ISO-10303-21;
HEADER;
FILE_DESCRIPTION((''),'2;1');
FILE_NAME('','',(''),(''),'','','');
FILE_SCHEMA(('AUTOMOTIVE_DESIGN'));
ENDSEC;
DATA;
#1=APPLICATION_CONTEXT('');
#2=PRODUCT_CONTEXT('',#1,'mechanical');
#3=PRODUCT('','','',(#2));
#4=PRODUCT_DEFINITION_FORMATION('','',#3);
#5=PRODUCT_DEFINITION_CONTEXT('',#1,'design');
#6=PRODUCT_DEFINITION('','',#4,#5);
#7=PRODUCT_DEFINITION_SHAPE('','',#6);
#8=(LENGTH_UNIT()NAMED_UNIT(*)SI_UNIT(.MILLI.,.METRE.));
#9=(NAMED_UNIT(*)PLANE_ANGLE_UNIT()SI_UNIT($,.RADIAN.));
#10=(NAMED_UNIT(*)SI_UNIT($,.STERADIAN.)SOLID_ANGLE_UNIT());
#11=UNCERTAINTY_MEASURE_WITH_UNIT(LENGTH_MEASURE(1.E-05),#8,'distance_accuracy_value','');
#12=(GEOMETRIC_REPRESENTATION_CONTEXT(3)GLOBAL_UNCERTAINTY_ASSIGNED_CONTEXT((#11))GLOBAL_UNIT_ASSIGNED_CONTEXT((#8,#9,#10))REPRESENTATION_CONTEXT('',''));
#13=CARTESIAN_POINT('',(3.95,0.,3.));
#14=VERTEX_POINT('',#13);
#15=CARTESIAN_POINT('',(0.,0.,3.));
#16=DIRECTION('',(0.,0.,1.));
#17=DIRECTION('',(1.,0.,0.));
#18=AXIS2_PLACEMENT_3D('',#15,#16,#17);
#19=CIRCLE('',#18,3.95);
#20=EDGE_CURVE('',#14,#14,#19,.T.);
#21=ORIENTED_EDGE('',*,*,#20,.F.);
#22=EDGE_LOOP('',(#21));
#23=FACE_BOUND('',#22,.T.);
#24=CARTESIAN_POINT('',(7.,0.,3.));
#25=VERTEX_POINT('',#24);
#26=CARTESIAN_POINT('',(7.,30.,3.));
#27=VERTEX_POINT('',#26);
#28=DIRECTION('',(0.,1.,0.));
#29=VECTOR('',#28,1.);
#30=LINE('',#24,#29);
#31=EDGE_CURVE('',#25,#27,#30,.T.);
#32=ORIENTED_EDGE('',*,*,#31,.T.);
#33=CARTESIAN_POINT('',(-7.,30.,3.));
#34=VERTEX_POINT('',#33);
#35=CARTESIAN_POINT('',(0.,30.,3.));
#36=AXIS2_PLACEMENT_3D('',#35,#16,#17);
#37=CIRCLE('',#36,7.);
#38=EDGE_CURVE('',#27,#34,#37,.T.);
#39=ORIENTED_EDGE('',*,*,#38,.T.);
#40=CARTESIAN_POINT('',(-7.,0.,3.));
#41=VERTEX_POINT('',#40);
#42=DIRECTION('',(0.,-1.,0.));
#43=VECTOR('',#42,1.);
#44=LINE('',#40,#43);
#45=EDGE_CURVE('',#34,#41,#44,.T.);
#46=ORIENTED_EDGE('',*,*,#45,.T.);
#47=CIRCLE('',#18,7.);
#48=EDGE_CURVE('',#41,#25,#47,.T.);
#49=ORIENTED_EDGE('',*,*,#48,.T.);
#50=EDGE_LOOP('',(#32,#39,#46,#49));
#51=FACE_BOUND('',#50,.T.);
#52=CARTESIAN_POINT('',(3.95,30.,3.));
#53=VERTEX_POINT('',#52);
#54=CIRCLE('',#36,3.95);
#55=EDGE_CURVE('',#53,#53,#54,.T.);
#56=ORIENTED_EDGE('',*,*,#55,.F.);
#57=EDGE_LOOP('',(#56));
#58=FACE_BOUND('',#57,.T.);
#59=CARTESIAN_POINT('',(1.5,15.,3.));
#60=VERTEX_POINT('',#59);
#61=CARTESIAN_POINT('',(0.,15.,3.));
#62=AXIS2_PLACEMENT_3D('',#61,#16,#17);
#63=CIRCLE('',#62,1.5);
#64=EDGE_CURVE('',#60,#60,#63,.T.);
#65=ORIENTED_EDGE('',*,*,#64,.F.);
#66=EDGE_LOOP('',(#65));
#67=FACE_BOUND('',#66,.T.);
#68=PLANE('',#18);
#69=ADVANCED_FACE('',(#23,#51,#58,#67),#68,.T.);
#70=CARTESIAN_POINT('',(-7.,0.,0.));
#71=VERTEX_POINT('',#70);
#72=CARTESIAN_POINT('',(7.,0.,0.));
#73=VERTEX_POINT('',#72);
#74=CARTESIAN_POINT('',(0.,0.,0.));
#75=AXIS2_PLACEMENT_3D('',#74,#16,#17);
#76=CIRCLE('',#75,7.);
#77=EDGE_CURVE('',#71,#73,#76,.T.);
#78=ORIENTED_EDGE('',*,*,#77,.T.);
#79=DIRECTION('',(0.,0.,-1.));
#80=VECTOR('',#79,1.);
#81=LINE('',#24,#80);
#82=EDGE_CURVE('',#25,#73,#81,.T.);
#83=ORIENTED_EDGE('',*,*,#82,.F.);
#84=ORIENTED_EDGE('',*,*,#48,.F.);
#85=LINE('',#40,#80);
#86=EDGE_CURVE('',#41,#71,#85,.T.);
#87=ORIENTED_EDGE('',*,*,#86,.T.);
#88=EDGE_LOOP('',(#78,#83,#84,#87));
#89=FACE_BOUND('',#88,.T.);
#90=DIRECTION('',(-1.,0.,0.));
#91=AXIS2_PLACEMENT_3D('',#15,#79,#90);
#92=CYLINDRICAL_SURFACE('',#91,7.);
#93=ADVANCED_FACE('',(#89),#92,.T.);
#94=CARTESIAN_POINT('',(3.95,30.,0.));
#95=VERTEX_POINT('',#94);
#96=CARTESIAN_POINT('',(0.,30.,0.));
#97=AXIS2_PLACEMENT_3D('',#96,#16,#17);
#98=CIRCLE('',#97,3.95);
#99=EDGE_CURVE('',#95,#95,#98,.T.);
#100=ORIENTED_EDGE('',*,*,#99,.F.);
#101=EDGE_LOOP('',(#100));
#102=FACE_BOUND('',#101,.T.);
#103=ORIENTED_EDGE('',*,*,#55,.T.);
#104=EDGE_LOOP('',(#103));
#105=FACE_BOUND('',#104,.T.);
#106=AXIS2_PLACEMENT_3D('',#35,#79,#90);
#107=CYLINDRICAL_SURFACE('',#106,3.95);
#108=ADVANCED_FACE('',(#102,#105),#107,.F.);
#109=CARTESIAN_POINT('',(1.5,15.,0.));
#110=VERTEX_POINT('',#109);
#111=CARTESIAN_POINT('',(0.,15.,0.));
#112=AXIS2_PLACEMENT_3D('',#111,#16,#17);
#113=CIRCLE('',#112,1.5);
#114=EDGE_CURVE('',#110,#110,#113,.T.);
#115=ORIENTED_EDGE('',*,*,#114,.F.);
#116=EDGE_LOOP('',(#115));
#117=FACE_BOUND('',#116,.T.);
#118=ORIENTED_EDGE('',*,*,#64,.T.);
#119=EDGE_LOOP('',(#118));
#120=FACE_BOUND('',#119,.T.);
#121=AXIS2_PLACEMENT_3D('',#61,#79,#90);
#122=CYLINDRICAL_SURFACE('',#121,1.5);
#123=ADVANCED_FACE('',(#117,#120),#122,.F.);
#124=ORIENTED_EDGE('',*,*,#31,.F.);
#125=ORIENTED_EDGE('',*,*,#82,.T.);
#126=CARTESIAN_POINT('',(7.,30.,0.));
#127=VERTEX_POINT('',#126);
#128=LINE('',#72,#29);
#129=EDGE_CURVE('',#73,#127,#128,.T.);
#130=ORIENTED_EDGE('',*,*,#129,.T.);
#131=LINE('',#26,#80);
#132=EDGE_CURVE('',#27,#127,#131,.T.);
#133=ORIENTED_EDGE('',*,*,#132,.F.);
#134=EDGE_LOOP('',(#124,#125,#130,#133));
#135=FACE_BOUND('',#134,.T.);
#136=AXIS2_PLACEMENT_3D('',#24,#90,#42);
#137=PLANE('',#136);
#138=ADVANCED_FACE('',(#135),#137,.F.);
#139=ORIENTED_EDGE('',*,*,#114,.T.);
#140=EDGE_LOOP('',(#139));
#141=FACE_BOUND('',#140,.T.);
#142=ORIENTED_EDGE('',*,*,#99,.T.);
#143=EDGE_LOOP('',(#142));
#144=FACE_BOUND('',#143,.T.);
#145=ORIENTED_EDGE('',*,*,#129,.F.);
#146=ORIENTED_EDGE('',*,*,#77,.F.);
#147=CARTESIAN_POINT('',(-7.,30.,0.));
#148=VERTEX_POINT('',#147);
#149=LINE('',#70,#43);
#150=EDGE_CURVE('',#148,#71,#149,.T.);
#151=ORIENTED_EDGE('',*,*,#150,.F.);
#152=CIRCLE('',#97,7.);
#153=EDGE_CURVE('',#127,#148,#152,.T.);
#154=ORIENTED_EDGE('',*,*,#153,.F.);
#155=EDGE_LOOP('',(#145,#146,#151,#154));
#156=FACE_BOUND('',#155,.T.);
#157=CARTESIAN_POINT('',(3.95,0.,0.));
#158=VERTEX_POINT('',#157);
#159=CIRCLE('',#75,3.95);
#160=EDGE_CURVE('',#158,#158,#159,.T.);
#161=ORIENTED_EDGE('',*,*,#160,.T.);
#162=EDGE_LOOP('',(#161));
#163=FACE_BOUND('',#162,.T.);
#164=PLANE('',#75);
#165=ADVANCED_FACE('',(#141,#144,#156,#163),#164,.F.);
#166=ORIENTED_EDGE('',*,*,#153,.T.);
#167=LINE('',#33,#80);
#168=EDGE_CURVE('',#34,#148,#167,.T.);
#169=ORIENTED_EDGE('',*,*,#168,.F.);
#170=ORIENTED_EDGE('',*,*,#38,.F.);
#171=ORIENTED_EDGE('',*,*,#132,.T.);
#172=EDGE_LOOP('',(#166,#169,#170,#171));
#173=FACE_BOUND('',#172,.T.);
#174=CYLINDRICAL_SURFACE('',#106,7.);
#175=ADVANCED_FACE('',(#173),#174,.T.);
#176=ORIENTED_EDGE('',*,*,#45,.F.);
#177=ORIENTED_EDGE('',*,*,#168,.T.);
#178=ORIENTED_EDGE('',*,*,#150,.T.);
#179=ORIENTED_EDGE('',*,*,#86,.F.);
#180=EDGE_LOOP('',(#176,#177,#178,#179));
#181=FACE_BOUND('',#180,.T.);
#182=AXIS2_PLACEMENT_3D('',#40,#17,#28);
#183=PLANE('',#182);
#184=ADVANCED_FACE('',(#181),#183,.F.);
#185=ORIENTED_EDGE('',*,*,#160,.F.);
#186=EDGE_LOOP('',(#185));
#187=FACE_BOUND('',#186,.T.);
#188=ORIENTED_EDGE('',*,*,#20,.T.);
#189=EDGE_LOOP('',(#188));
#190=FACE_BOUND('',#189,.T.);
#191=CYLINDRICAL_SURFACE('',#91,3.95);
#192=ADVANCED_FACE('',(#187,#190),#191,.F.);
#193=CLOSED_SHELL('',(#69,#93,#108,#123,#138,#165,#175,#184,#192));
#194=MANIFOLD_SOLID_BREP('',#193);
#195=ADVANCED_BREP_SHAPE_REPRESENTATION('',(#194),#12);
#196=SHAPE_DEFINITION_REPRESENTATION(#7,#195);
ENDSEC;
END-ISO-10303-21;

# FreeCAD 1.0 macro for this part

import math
import FreeCAD as App
import Part
import Sketcher

V = App.Vector
Q = App.Units.Quantity

doc = App.newDocument("Part")
body = doc.addObject("PartDesign::Body", "Body")

# Sketch on XY plane
sketch1 = body.newObject("Sketcher::SketchObject", "Sketch")
sketch1.AttachmentSupport = (doc.getObject("XY_Plane"), [""])
sketch1.MapMode = "FlatFace"
sketch1.addGeometry(Part.ArcOfCircle(Part.Circle(V(0, 30, 0), V(0, 0, 1), 7), math.radians(0), math.radians(180)), False)
sketch1.addGeometry(Part.LineSegment(V(-7, 30, 0), V(-7, 0, 0)), False)
sketch1.addGeometry(Part.ArcOfCircle(Part.Circle(V(0, 0, 0), V(0, 0, 1), 7), math.radians(180), math.radians(360)), False)
sketch1.addGeometry(Part.LineSegment(V(7, 0, 0), V(7, 30, 0)), False)
sketch1.addGeometry(Part.Circle(V(0, 30, 0), V(0, 0, 1), 4), False)
sketch1.addGeometry(Part.Circle(V(0, 15, 0), V(0, 0, 1), 1.5), False)
sketch1.addGeometry(Part.Circle(V(0, 0, 0), V(0, 0, 1), 4), False)
sketch1.addConstraint(Sketcher.Constraint("Tangent", 0, 2, 1, 1))
sketch1.addConstraint(Sketcher.Constraint("Tangent", 1, 2, 2, 1))
sketch1.addConstraint(Sketcher.Constraint("Tangent", 2, 2, 3, 1))
sketch1.addConstraint(Sketcher.Constraint("Tangent", 3, 2, 0, 1))
sketch1.addConstraint(Sketcher.Constraint("Vertical", 1))
sketch1.addConstraint(Sketcher.Constraint("Vertical", 3))
sketch1.addConstraint(Sketcher.Constraint("Coincident", 2, 3, -1, 1))
sketch1.addConstraint(Sketcher.Constraint("Coincident", 6, 3, -1, 1))
sketch1.addConstraint(Sketcher.Constraint("Coincident", 4, 3, 0, 3))
sketch1.addConstraint(Sketcher.Constraint("Equal", 4, 6))
sketch1.addConstraint(Sketcher.Constraint("PointOnObject", 5, 3, -2))
sketch1.addConstraint(Sketcher.Constraint("Diameter", 5, Q("3 mm")))
sketch1.addConstraint(Sketcher.Constraint("Radius", 0, Q("7 mm")))
sketch1.addConstraint(Sketcher.Constraint("Diameter", 4, Q("7.9 mm")))
sketch1.addConstraint(Sketcher.Constraint("DistanceY", 1, 2, 1, 1, Q("30 mm")))
sketch1.addConstraint(Sketcher.Constraint("DistanceY", -1, 1, 5, 3, Q("15 mm")))
pad1 = body.newObject("PartDesign::Pad", "Pad")
pad1.Profile = sketch1
pad1.Length = 3

doc.recompute()
